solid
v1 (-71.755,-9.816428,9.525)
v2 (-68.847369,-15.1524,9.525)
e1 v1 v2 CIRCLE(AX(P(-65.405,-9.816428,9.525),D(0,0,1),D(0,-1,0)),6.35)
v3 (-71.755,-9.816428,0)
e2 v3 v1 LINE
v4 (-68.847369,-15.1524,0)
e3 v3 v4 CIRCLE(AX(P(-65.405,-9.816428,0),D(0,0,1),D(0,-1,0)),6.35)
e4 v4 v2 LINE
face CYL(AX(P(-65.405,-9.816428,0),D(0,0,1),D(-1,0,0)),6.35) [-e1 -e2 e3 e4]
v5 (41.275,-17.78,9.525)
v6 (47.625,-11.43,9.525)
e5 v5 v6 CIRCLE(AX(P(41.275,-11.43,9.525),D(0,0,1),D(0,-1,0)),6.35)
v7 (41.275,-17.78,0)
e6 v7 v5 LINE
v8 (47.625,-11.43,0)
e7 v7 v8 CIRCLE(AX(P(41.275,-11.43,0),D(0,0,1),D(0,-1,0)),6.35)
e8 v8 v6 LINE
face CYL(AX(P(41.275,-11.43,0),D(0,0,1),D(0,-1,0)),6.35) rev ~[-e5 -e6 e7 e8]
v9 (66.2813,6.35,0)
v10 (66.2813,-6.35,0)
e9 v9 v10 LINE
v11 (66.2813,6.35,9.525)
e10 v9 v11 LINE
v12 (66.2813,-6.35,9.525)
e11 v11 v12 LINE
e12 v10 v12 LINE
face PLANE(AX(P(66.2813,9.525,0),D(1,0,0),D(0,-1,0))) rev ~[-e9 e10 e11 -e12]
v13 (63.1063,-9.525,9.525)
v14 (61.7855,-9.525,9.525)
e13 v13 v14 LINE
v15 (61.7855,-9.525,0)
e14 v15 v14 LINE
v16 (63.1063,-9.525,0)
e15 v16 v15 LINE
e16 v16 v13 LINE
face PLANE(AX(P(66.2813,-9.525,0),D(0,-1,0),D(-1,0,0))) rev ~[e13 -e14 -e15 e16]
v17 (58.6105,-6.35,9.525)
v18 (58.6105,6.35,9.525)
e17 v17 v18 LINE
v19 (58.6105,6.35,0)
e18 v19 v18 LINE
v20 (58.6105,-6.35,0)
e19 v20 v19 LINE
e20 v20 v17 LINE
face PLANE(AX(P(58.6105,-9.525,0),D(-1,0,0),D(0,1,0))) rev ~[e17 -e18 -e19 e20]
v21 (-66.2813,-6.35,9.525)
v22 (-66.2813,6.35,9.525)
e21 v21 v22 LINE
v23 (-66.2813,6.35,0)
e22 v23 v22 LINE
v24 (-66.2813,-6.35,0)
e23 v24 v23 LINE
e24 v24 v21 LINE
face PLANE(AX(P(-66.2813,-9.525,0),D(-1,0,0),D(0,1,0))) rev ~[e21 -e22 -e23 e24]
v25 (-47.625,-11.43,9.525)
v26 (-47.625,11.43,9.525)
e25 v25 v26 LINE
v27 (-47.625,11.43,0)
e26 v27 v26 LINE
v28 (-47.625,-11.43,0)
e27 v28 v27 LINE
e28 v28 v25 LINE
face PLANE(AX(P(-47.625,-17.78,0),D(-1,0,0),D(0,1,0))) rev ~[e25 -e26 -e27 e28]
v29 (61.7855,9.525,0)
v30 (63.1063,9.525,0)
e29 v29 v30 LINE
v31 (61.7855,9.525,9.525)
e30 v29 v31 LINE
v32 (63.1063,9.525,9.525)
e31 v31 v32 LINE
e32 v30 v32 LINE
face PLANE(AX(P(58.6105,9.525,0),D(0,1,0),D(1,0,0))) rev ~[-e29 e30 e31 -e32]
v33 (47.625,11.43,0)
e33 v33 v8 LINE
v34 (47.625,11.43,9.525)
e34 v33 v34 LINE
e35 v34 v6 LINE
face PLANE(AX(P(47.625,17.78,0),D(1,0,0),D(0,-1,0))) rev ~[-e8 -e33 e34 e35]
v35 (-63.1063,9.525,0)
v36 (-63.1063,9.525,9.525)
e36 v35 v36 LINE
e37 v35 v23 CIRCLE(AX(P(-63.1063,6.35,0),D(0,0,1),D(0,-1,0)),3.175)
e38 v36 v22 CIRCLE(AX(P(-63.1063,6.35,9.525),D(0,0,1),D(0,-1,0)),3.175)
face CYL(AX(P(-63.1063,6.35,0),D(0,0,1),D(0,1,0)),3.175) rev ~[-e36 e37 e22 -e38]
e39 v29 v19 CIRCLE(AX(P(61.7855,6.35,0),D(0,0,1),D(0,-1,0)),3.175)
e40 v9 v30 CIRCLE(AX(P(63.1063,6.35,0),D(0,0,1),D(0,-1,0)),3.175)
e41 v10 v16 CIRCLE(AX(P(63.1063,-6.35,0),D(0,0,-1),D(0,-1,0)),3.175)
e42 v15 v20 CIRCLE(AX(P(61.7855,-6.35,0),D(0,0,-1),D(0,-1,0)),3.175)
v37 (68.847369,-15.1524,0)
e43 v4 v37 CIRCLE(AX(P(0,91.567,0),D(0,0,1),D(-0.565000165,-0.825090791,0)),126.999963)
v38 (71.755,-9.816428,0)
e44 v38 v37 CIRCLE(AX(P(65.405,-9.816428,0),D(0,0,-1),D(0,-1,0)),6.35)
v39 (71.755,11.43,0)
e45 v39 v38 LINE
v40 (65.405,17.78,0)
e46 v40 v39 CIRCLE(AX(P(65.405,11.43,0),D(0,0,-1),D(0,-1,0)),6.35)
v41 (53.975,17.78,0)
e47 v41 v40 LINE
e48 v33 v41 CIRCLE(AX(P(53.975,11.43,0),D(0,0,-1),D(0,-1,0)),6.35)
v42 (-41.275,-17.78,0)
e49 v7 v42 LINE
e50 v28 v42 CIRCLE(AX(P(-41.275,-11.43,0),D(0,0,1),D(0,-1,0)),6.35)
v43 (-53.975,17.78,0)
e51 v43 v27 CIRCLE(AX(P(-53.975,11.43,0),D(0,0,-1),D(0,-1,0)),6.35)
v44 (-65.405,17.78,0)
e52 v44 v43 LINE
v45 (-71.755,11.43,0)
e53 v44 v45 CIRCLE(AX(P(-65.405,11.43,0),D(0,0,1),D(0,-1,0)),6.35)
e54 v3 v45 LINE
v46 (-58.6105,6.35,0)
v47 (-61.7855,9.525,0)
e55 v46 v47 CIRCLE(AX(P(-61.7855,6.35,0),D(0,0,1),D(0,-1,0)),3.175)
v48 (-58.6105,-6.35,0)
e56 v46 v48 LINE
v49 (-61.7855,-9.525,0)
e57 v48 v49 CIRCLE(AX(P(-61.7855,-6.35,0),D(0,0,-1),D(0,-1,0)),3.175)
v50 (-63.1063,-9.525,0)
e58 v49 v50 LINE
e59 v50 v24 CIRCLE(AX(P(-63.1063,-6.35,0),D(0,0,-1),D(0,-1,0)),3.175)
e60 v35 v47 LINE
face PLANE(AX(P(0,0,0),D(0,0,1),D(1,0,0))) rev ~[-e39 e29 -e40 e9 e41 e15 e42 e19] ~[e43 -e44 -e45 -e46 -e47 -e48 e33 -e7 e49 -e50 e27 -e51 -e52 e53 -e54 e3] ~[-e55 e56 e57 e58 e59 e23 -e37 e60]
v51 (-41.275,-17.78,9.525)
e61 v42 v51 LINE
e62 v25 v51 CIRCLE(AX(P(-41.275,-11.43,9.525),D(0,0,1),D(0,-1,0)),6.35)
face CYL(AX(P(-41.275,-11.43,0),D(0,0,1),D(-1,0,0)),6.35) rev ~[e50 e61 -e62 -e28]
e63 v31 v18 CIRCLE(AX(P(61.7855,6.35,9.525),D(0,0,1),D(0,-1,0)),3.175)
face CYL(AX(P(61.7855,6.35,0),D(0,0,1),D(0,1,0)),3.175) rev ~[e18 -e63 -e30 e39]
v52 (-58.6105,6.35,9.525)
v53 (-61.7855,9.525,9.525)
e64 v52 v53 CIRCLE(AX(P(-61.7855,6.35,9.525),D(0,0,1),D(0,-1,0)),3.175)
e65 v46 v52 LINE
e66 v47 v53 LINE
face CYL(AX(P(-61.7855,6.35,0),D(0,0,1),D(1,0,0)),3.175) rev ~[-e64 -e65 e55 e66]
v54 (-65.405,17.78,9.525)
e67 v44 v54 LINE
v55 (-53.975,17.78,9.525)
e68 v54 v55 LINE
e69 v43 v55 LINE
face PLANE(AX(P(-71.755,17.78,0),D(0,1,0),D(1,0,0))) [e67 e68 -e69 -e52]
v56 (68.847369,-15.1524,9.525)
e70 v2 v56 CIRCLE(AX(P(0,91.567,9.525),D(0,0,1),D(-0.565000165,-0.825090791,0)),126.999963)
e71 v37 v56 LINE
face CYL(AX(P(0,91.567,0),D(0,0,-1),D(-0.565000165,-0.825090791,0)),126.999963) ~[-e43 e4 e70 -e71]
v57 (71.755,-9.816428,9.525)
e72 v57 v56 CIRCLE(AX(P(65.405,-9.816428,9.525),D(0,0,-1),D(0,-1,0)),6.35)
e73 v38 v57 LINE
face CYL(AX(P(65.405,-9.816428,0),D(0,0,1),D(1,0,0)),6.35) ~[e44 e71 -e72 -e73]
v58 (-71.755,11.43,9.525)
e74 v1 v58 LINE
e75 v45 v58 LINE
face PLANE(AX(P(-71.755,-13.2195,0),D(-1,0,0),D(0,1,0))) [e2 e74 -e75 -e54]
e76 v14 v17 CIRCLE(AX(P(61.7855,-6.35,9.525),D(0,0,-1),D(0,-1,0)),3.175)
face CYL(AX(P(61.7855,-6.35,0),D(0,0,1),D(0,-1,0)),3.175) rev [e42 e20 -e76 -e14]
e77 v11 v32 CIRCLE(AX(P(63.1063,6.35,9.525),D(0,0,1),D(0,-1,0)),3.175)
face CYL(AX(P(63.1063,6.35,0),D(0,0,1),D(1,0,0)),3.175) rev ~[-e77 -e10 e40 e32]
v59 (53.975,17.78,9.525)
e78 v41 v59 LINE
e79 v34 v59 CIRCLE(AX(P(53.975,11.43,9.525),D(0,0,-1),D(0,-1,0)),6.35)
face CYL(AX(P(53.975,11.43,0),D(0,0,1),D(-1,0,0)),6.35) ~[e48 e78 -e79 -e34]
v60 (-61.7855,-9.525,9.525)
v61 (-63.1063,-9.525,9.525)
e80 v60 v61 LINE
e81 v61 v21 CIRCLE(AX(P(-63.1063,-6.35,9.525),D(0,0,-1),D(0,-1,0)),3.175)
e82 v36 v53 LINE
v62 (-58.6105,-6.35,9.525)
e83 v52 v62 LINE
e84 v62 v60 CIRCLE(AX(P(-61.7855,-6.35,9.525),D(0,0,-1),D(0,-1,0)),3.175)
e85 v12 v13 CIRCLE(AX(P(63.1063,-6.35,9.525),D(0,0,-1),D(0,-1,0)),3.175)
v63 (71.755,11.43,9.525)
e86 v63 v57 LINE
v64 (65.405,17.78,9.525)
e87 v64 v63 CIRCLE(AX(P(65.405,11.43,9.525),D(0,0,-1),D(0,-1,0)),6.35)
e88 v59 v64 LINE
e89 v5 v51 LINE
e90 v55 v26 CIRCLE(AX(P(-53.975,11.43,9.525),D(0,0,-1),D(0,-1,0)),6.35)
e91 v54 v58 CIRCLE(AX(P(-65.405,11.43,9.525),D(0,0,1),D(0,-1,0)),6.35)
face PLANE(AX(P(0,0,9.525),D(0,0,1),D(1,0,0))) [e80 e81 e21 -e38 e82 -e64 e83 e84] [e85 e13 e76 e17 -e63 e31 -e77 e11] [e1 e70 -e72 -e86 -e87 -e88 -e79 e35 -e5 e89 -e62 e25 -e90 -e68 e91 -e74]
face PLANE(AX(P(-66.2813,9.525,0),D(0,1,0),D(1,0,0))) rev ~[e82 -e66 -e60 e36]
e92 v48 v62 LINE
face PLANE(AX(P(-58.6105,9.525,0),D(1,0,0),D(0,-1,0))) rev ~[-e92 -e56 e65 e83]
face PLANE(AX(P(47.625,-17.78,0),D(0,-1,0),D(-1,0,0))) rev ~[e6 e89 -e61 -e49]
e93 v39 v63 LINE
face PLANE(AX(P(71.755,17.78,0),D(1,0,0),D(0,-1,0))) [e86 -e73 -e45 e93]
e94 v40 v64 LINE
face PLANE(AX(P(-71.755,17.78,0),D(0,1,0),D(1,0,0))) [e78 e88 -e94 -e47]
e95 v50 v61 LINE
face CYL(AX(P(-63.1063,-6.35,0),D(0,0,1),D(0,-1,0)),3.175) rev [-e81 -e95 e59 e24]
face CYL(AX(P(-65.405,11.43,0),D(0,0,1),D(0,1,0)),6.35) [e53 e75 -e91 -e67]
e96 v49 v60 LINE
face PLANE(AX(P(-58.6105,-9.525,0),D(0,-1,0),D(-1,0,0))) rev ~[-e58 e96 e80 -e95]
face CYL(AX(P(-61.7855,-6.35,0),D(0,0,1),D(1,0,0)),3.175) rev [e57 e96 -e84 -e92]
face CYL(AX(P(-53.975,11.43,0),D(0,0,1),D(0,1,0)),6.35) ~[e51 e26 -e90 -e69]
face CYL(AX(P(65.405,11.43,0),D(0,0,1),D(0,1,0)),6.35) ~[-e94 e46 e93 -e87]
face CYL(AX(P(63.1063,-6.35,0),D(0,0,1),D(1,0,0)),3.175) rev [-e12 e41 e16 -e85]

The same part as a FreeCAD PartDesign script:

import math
import FreeCAD as App
import Part
import Sketcher
Q = App.Units.Quantity


def edges_at(feature, points):
    """Names of the edges that pass closest to the given points."""
    edges = feature.Shape.Edges
    near = lambda p: min(range(len(edges)), key=lambda i: edges[i].distToShape(Part.Vertex(*p))[0])
    return sorted({f"Edge{near(p) + 1}" for p in points})

doc = App.newDocument("Part")
params = doc.addObject("Spreadsheet::Sheet", "Params")
for row, (alias, value) in enumerate([
    ("sketch1_radius", "5 in"),
    ("sketch1_width", "5.65 in"),
    ("pad1_length", "0.375 in"),
    ("sketch2_height", "0.75 in"),
    ("sketch2_width", "0.302 in"),
    ("pocket1_length", "0.375 in"),
    ("sketch3_height", "1.4 in"),
    ("sketch3_width", "3.75 in"),
    ("fillet_radius", "0.25 in"),
    ("fillet2_radius", "0.125 in"),
], start=1):
    params.set(f"A{row}", alias)
    params.set(f"B{row}", "=" + value)
    params.setAlias(f"B{row}", alias)

body = doc.addObject("PartDesign::Body", "Body")

sketch1 = body.newObject("Sketcher::SketchObject", "Sketch")
sketch1.AttachmentSupport = (doc.getObject("XY_Plane"), [""])
sketch1.MapMode = "FlatFace"
sketch1.addGeometry(Part.LineSegment(App.Vector(72, 18, 0), App.Vector(-72, 18, 0)), False)
sketch1.addGeometry(Part.LineSegment(App.Vector(-72, 18, 0), App.Vector(-72, -13, 0)), False)
sketch1.addGeometry(Part.ArcOfCircle(Part.Circle(App.Vector(0, 92, 0), App.Vector(0, 0, 1), 127), math.radians(-124), math.radians(-56)), False)
sketch1.addGeometry(Part.LineSegment(App.Vector(72, -13, 0), App.Vector(72, 18, 0)), False)
sketch1.addConstraint(Sketcher.Constraint("Coincident", 0, 2, 1, 1))
sketch1.addConstraint(Sketcher.Constraint("Coincident", 1, 2, 2, 1))
sketch1.addConstraint(Sketcher.Constraint("Coincident", 2, 2, 3, 1))
sketch1.addConstraint(Sketcher.Constraint("Coincident", 3, 2, 0, 1))
sketch1.addConstraint(Sketcher.Constraint("Horizontal", 0))
sketch1.addConstraint(Sketcher.Constraint("Vertical", 1))
sketch1.addConstraint(Sketcher.Constraint("Vertical", 3))
sketch1.addConstraint(Sketcher.Constraint("Symmetric", 1, 2, 2, 2, -2))
sketch1.addConstraint(Sketcher.Constraint("Radius", 2, Q("5 in")))
sketch1.addConstraint(Sketcher.Constraint("DistanceX", 0, 2, 0, 1, Q("5.65 in")))
sketch1.addConstraint(Sketcher.Constraint("DistanceY", -1, 1, 0, 2, Q("0.7 in")))
sketch1.addConstraint(Sketcher.Constraint("DistanceY", -1, 1, 2, 3, Q("3.605 in")))
sketch1.setExpression("Constraints[8]", "Params.sketch1_radius")
sketch1.setExpression("Constraints[9]", "Params.sketch1_width")
pad1 = body.newObject("PartDesign::Pad", "Pad")
pad1.Profile = sketch1
pad1.setExpression("Length", "Params.pad1_length")

sketch2 = body.newObject("Sketcher::SketchObject", "Sketch001")
sketch2.AttachmentSupport = (doc.getObject("XY_Plane"), [""])
sketch2.MapMode = "FlatFace"
sketch2.addGeometry(Part.LineSegment(App.Vector(59, -10, 0), App.Vector(66, -10, 0)), False)
sketch2.addGeometry(Part.LineSegment(App.Vector(66, -10, 0), App.Vector(66, 10, 0)), False)
sketch2.addGeometry(Part.LineSegment(App.Vector(66, 10, 0), App.Vector(59, 10, 0)), False)
sketch2.addGeometry(Part.LineSegment(App.Vector(59, 10, 0), App.Vector(59, -10, 0)), False)
sketch2.addGeometry(Part.LineSegment(App.Vector(-66, -10, 0), App.Vector(-59, -10, 0)), False)
sketch2.addGeometry(Part.LineSegment(App.Vector(-59, -10, 0), App.Vector(-59, 10, 0)), False)
sketch2.addGeometry(Part.LineSegment(App.Vector(-59, 10, 0), App.Vector(-66, 10, 0)), False)
sketch2.addGeometry(Part.LineSegment(App.Vector(-66, 10, 0), App.Vector(-66, -10, 0)), False)
sketch2.addConstraint(Sketcher.Constraint("Coincident", 0, 2, 1, 1))
sketch2.addConstraint(Sketcher.Constraint("Coincident", 1, 2, 2, 1))
sketch2.addConstraint(Sketcher.Constraint("Coincident", 2, 2, 3, 1))
sketch2.addConstraint(Sketcher.Constraint("Coincident", 3, 2, 0, 1))
sketch2.addConstraint(Sketcher.Constraint("Coincident", 4, 2, 5, 1))
sketch2.addConstraint(Sketcher.Constraint("Coincident", 5, 2, 6, 1))
sketch2.addConstraint(Sketcher.Constraint("Coincident", 6, 2, 7, 1))
sketch2.addConstraint(Sketcher.Constraint("Coincident", 7, 2, 4, 1))
sketch2.addConstraint(Sketcher.Constraint("Horizontal", 0))
sketch2.addConstraint(Sketcher.Constraint("Vertical", 1))
sketch2.addConstraint(Sketcher.Constraint("Horizontal", 2))
sketch2.addConstraint(Sketcher.Constraint("Vertical", 3))
sketch2.addConstraint(Sketcher.Constraint("Horizontal", 4))
sketch2.addConstraint(Sketcher.Constraint("Vertical", 5))
sketch2.addConstraint(Sketcher.Constraint("Horizontal", 6))
sketch2.addConstraint(Sketcher.Constraint("Vertical", 7))
sketch2.addConstraint(Sketcher.Constraint("Symmetric", 2, 2, 4, 2, -1, 1))
sketch2.addConstraint(Sketcher.Constraint("Symmetric", 0, 2, 6, 2, -1, 1))
sketch2.addConstraint(Sketcher.Constraint("Horizontal", 3, 2, 4, 2))
sketch2.addConstraint(Sketcher.Constraint("DistanceY", 1, 1, 1, 2, Q("0.75 in")))
sketch2.addConstraint(Sketcher.Constraint("DistanceX", 0, 1, 0, 2, Q("0.302 in")))
sketch2.addConstraint(Sketcher.Constraint("DistanceX", 4, 2, 0, 2, Q("4.917 in")))
sketch2.setExpression("Constraints[19]", "Params.sketch2_height")
sketch2.setExpression("Constraints[20]", "Params.sketch2_width")
pocket1 = body.newObject("PartDesign::Pocket", "Pocket")
pocket1.Profile = sketch2
pocket1.setExpression("Length", "Params.pocket1_length")
pocket1.Reversed = True

sketch3 = body.newObject("Sketcher::SketchObject", "Sketch002")
sketch3.AttachmentSupport = (doc.getObject("XY_Plane"), [""])
sketch3.MapMode = "FlatFace"
sketch3.addGeometry(Part.LineSegment(App.Vector(48, 18, 0), App.Vector(-48, 18, 0)), False)
sketch3.addGeometry(Part.LineSegment(App.Vector(-48, 18, 0), App.Vector(-48, -18, 0)), False)
sketch3.addGeometry(Part.LineSegment(App.Vector(-48, -18, 0), App.Vector(48, -18, 0)), False)
sketch3.addGeometry(Part.LineSegment(App.Vector(48, -18, 0), App.Vector(48, 18, 0)), False)
sketch3.addConstraint(Sketcher.Constraint("Coincident", 0, 2, 1, 1))
sketch3.addConstraint(Sketcher.Constraint("Coincident", 1, 2, 2, 1))
sketch3.addConstraint(Sketcher.Constraint("Coincident", 2, 2, 3, 1))
sketch3.addConstraint(Sketcher.Constraint("Coincident", 3, 2, 0, 1))
sketch3.addConstraint(Sketcher.Constraint("Horizontal", 0))
sketch3.addConstraint(Sketcher.Constraint("Vertical", 1))
sketch3.addConstraint(Sketcher.Constraint("Horizontal", 2))
sketch3.addConstraint(Sketcher.Constraint("Vertical", 3))
sketch3.addConstraint(Sketcher.Constraint("Symmetric", 0, 2, 2, 2, -1, 1))
sketch3.addConstraint(Sketcher.Constraint("DistanceY", 1, 2, 1, 1, Q("1.4 in")))
sketch3.addConstraint(Sketcher.Constraint("DistanceX", 0, 2, 0, 1, Q("3.75 in")))
sketch3.setExpression("Constraints[9]", "Params.sketch3_height")
sketch3.setExpression("Constraints[10]", "Params.sketch3_width")
pocket2 = body.newObject("PartDesign::Pocket", "Pocket001")
pocket2.Profile = sketch3
pocket2.Type = "UpToFirst"
pocket2.Reversed = True
doc.recompute()

fillet = body.newObject("PartDesign::Fillet", "Fillet")
fillet.Base = (pocket2, edges_at(pocket2, [
    (-47.625, -17.78, 4.763),
    (-47.625, 17.78, 4.763),
    (-71.755, 17.78, 4.763),
    (47.625, -17.78, 4.763),
    (47.625, 17.78, 4.763),
    (71.755, 17.78, 4.763),
    (71.755, -13.22, 4.763),
    (-71.755, -13.22, 4.763),
]))
fillet.setExpression("Radius", "Params.fillet_radius")
doc.recompute()

fillet2 = body.newObject("PartDesign::Fillet", "Fillet001")
fillet2.Base = (fillet, edges_at(fillet, [
    (-66.281, 9.525, 4.763),
    (-58.611, 9.525, 4.763),
    (-58.611, -9.525, 4.763),
    (-66.281, -9.525, 4.763),
    (58.611, 9.525, 4.763),
    (66.281, 9.525, 4.763),
    (66.281, -9.525, 4.763),
    (58.611, -9.525, 4.763),
]))
fillet2.setExpression("Radius", "Params.fillet2_radius")

doc.recompute()
